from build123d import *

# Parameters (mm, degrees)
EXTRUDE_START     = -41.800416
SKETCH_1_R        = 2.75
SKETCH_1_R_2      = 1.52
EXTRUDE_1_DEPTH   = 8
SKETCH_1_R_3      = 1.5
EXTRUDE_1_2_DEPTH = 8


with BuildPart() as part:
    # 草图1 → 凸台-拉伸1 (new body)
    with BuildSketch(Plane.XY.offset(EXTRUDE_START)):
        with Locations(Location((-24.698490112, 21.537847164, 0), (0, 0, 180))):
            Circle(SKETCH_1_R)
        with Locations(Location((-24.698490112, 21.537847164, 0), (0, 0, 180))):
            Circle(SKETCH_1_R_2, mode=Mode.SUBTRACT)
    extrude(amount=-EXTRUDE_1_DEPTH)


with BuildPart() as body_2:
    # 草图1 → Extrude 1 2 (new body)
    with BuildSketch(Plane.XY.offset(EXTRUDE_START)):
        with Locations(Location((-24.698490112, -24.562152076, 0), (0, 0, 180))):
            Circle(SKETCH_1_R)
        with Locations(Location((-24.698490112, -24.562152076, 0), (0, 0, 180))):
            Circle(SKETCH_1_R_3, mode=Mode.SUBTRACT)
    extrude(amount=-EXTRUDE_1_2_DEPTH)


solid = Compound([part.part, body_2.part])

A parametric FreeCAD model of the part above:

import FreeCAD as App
import Part
import Sketcher
from FreeCAD import Vector

doc = App.newDocument("Part")
body = doc.addObject("PartDesign::Body", "Body")

# Sketch on XY plane
sketch1 = doc.addObject("Sketcher::SketchObject", "Sketch")
body.addObject(sketch1)
sketch1.AttachmentSupport = (doc.XY_Plane, [""])
sketch1.MapMode = "FlatFace"
sketch1.AttachmentOffset = App.Placement(Vector(0, 0, -41.800416), App.Rotation())
sketch1.addGeometry(Part.Circle(Vector(-24.7, 21.5, 0), Vector(0, 0, 1), 2.8), False)
sketch1.addGeometry(Part.Circle(Vector(-24.7, 21.5, 0), Vector(0, 0, 1), 1.5), False)
sketch1.addConstraint(Sketcher.Constraint("Coincident", 1, 3, 0, 3))
sketch1.addConstraint(Sketcher.Constraint("Diameter", 0, 5.5))
sketch1.addConstraint(Sketcher.Constraint("Diameter", 1, 3.04))
sketch1.addConstraint(Sketcher.Constraint("DistanceX", 0, 3, -1, 1, 24.69849))
sketch1.addConstraint(Sketcher.Constraint("DistanceY", -1, 1, 0, 3, 21.537847))
pad1 = doc.addObject("PartDesign::Pad", "Pad")
body.addObject(pad1)
pad1.Profile = sketch1
pad1.Length = 8
pad1.Reversed = True
body2 = doc.addObject("PartDesign::Body", "Body001")

# Sketch on XY plane
sketch2 = doc.addObject("Sketcher::SketchObject", "Sketch001")
body2.addObject(sketch2)
sketch2.AttachmentSupport = (doc.getObject("XY_Plane001"), [""])
sketch2.MapMode = "FlatFace"
sketch2.AttachmentOffset = App.Placement(Vector(0, 0, -41.800416), App.Rotation())
sketch2.addGeometry(Part.Circle(Vector(-24.7, -24.6, 0), Vector(0, 0, 1), 2.8), False)
sketch2.addGeometry(Part.Circle(Vector(-24.7, -24.6, 0), Vector(0, 0, 1), 1.5), False)
sketch2.addConstraint(Sketcher.Constraint("Coincident", 1, 3, 0, 3))
sketch2.addConstraint(Sketcher.Constraint("Diameter", 1, 3.0))
sketch2.addConstraint(Sketcher.Constraint("Diameter", 0, 5.5))
sketch2.addConstraint(Sketcher.Constraint("DistanceX", 0, 3, -1, 1, 24.69849))
sketch2.addConstraint(Sketcher.Constraint("DistanceY", 0, 3, -1, 1, 24.562152))
pad2 = doc.addObject("PartDesign::Pad", "Pad001")
body2.addObject(pad2)
pad2.Profile = sketch2
pad2.Length = 8
pad2.Reversed = True

doc.recompute()
